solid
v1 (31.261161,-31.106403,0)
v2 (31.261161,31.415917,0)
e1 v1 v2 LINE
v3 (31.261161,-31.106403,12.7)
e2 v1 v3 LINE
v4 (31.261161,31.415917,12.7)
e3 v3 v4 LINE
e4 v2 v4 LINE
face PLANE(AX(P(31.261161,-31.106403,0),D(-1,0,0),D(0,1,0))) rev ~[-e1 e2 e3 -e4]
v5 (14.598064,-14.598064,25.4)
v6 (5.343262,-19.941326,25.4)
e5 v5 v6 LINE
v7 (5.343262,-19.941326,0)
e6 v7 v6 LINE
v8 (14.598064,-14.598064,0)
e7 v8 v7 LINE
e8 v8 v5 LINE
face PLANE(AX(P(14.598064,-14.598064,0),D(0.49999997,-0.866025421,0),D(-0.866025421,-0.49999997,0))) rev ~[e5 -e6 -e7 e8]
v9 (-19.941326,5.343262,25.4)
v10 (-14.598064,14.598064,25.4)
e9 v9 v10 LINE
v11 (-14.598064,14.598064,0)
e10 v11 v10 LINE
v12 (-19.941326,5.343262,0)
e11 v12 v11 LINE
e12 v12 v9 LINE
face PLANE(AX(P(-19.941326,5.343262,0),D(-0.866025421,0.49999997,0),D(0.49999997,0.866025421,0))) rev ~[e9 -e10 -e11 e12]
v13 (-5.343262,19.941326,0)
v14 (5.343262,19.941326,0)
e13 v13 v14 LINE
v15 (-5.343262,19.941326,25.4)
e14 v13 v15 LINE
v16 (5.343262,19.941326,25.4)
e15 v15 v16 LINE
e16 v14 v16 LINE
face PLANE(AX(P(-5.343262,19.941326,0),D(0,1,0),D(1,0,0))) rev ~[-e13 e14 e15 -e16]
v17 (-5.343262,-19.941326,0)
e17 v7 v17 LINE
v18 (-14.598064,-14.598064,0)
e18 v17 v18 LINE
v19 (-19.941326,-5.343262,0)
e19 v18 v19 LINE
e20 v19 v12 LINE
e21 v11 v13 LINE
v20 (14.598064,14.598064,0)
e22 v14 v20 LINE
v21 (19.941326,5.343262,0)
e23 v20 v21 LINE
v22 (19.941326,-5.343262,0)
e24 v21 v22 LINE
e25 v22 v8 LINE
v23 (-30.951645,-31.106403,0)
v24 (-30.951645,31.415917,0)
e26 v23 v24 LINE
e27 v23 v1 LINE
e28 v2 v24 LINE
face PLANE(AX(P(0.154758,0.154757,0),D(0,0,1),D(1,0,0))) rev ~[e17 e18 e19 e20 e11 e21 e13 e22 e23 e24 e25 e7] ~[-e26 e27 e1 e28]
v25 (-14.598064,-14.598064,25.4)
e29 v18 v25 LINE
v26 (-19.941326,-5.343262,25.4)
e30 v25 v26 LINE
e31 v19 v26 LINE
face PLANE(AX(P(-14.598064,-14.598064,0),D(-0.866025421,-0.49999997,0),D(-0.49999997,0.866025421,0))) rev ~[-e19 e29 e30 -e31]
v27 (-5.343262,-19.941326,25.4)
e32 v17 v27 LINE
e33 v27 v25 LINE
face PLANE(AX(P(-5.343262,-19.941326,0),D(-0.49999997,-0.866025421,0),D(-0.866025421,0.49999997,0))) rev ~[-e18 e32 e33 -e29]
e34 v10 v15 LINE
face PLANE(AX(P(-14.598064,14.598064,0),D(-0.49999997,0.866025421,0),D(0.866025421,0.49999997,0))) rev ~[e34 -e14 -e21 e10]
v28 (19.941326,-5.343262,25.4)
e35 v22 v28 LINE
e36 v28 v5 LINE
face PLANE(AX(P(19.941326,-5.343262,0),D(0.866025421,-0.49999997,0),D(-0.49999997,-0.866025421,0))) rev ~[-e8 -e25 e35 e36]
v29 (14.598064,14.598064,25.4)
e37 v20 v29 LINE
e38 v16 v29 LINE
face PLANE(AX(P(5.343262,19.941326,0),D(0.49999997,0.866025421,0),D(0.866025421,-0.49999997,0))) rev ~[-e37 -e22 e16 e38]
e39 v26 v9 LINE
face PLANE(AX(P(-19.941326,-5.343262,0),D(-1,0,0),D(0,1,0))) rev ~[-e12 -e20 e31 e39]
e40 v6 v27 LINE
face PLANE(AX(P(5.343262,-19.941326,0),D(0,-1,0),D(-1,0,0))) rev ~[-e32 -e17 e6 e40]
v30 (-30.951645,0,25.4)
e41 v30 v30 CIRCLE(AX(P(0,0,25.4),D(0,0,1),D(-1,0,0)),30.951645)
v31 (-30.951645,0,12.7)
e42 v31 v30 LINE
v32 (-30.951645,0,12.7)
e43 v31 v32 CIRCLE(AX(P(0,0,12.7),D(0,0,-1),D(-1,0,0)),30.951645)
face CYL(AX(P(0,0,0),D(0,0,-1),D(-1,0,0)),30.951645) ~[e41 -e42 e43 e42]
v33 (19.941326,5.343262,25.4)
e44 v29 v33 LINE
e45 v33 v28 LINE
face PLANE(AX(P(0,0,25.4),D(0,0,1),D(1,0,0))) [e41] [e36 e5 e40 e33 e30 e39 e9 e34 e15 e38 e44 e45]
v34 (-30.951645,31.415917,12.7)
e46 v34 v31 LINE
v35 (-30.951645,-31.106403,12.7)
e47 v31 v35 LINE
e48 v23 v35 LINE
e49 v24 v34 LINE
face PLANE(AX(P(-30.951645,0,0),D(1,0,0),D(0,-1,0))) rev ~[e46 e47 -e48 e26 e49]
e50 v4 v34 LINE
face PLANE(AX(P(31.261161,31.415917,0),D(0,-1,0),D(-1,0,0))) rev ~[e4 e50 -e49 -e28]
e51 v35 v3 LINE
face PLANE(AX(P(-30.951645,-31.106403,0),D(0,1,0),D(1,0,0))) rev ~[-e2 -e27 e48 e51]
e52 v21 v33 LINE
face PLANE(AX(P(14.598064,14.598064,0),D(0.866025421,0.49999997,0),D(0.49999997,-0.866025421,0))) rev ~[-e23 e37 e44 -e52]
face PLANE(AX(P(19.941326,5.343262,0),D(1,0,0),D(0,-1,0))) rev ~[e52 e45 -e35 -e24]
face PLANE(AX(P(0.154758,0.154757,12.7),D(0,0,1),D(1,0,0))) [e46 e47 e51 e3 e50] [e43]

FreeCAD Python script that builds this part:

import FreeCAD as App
import Part
import Sketcher

V = App.Vector
Q = App.Units.Quantity

doc = App.newDocument("Part")
body = doc.addObject("PartDesign::Body", "Body")

# Sketch on XY plane
sketch1 = body.newObject("Sketcher::SketchObject", "Sketch")
sketch1.AttachmentSupport = (doc.getObject("XY_Plane"), [""])
sketch1.MapMode = "FlatFace"
sketch1.addGeometry([
    Part.Circle(V(0, 0, 0), V(0, 0, 1), 31),  # 0
    Part.LineSegment(V(-5, -20, 0), V(-15, -15, 0)),  # 1
    Part.LineSegment(V(-15, -15, 0), V(-20, -5, 0)),  # 2
    Part.LineSegment(V(-20, -5, 0), V(-20, 5, 0)),  # 3
    Part.LineSegment(V(-20, 5, 0), V(-15, 15, 0)),  # 4
    Part.LineSegment(V(-15, 15, 0), V(-5, 20, 0)),  # 5
    Part.LineSegment(V(-5, 20, 0), V(5, 20, 0)),  # 6
    Part.LineSegment(V(5, 20, 0), V(15, 15, 0)),  # 7
    Part.LineSegment(V(15, 15, 0), V(20, 5, 0)),  # 8
    Part.LineSegment(V(20, 5, 0), V(20, -5, 0)),  # 9
    Part.LineSegment(V(20, -5, 0), V(15, -15, 0)),  # 10
    Part.LineSegment(V(15, -15, 0), V(5, -20, 0)),  # 11
    Part.LineSegment(V(5, -20, 0), V(-5, -20, 0)),  # 12
], False)
sketch1.addConstraint([
    Sketcher.Constraint("Coincident", 1, 2, 2, 1),
    Sketcher.Constraint("Coincident", 2, 2, 3, 1),
    Sketcher.Constraint("Coincident", 3, 2, 4, 1),
    Sketcher.Constraint("Coincident", 4, 2, 5, 1),
    Sketcher.Constraint("Coincident", 5, 2, 6, 1),
    Sketcher.Constraint("Coincident", 6, 2, 7, 1),
    Sketcher.Constraint("Coincident", 7, 2, 8, 1),
    Sketcher.Constraint("Coincident", 8, 2, 9, 1),
    Sketcher.Constraint("Coincident", 9, 2, 10, 1),
    Sketcher.Constraint("Coincident", 10, 2, 11, 1),
    Sketcher.Constraint("Coincident", 11, 2, 12, 1),
    Sketcher.Constraint("Coincident", 12, 2, 1, 1),
    Sketcher.Constraint("Vertical", 3),
    Sketcher.Constraint("Horizontal", 6),
    Sketcher.Constraint("Vertical", 9),
    Sketcher.Constraint("Horizontal", 12),
    Sketcher.Constraint("Coincident", 0, 3, -1, 1),
    Sketcher.Constraint("Symmetric", 1, 2, 7, 2, -1, 1),
    Sketcher.Constraint("Symmetric", 2, 2, 8, 2, -1, 1),
    Sketcher.Constraint("Symmetric", 4, 2, 10, 2, -1, 1),
    Sketcher.Constraint("Symmetric", 5, 2, 11, 2, -1, 1),
    Sketcher.Constraint("Symmetric", 4, 2, 7, 2, -2),
    Sketcher.Constraint("Perpendicular", 1, 4),
    Sketcher.Constraint("Perpendicular", 2, 5),
    Sketcher.Constraint("Perpendicular", 4, 7),
    Sketcher.Constraint("Perpendicular", 7, 10),
    Sketcher.Constraint("Horizontal", 3, 2, 8, 2),
    Sketcher.Constraint("Equal", 12, 3),
    Sketcher.Constraint("Equal", 1, 2),
    Sketcher.Constraint("Angle", 1, Q("150.000002 deg")),
    Sketcher.Constraint("Diameter", 0, Q("61.90329 mm")),
    Sketcher.Constraint("DistanceX", 6, 1, 6, 2, Q("10.686524 mm")),
    Sketcher.Constraint("DistanceX", 2, 2, 1, 2, Q("5.343262 mm")),
])
pad1 = body.newObject("PartDesign::Pad", "Pad")
pad1.Profile = sketch1
pad1.Length = Q("1 in")

# Sketch on XY plane
sketch2 = body.newObject("Sketcher::SketchObject", "Sketch001")
sketch2.AttachmentSupport = (doc.getObject("XY_Plane"), [""])
sketch2.MapMode = "FlatFace"
sketch2.addGeometry([
    Part.LineSegment(V(31, -31, 0), V(31, 31, 0)),  # 0
    Part.LineSegment(V(31, 31, 0), V(-31, 31, 0)),  # 1
    Part.LineSegment(V(-31, 31, 0), V(-31, 0, 0)),  # 2
    Part.LineSegment(V(-31, 0, 0), V(-31, -31, 0)),  # 3
    Part.LineSegment(V(-31, -31, 0), V(31, -31, 0)),  # 4
    Part.Circle(V(0, 0, 0), V(0, 0, 1), 31),  # 5
], False)
sketch2.addConstraint([
    Sketcher.Constraint("Coincident", 0, 2, 1, 1),
    Sketcher.Constraint("Coincident", 1, 2, 2, 1),
    Sketcher.Constraint("Coincident", 2, 2, 3, 1),
    Sketcher.Constraint("Coincident", 3, 2, 4, 1),
    Sketcher.Constraint("Coincident", 4, 2, 0, 1),
    Sketcher.Constraint("Vertical", 0),
    Sketcher.Constraint("Horizontal", 1),
    Sketcher.Constraint("Vertical", 2),
    Sketcher.Constraint("Vertical", 3),
    Sketcher.Constraint("Horizontal", 4),
    Sketcher.Constraint("Coincident", 5, 3, -1, 1),
    Sketcher.Constraint("PointOnObject", 2, 2, -1),
    Sketcher.Constraint("Diameter", 5, Q("61.90329 mm")),
    Sketcher.Constraint("DistanceY", 0, 1, 0, 2, Q("62.52232 mm")),
    Sketcher.Constraint("DistanceX", 1, 2, 1, 1, Q("62.212806 mm")),
    Sketcher.Constraint("DistanceY", 2, 2, 2, 1, Q("31.415917 mm")),
    Sketcher.Constraint("DistanceX", -1, 1, 0, 2, Q("31.261161 mm")),
])
pad2 = body.newObject("PartDesign::Pad", "Pad001")
pad2.Profile = sketch2
pad2.Length = Q("0.5 in")

doc.recompute()
